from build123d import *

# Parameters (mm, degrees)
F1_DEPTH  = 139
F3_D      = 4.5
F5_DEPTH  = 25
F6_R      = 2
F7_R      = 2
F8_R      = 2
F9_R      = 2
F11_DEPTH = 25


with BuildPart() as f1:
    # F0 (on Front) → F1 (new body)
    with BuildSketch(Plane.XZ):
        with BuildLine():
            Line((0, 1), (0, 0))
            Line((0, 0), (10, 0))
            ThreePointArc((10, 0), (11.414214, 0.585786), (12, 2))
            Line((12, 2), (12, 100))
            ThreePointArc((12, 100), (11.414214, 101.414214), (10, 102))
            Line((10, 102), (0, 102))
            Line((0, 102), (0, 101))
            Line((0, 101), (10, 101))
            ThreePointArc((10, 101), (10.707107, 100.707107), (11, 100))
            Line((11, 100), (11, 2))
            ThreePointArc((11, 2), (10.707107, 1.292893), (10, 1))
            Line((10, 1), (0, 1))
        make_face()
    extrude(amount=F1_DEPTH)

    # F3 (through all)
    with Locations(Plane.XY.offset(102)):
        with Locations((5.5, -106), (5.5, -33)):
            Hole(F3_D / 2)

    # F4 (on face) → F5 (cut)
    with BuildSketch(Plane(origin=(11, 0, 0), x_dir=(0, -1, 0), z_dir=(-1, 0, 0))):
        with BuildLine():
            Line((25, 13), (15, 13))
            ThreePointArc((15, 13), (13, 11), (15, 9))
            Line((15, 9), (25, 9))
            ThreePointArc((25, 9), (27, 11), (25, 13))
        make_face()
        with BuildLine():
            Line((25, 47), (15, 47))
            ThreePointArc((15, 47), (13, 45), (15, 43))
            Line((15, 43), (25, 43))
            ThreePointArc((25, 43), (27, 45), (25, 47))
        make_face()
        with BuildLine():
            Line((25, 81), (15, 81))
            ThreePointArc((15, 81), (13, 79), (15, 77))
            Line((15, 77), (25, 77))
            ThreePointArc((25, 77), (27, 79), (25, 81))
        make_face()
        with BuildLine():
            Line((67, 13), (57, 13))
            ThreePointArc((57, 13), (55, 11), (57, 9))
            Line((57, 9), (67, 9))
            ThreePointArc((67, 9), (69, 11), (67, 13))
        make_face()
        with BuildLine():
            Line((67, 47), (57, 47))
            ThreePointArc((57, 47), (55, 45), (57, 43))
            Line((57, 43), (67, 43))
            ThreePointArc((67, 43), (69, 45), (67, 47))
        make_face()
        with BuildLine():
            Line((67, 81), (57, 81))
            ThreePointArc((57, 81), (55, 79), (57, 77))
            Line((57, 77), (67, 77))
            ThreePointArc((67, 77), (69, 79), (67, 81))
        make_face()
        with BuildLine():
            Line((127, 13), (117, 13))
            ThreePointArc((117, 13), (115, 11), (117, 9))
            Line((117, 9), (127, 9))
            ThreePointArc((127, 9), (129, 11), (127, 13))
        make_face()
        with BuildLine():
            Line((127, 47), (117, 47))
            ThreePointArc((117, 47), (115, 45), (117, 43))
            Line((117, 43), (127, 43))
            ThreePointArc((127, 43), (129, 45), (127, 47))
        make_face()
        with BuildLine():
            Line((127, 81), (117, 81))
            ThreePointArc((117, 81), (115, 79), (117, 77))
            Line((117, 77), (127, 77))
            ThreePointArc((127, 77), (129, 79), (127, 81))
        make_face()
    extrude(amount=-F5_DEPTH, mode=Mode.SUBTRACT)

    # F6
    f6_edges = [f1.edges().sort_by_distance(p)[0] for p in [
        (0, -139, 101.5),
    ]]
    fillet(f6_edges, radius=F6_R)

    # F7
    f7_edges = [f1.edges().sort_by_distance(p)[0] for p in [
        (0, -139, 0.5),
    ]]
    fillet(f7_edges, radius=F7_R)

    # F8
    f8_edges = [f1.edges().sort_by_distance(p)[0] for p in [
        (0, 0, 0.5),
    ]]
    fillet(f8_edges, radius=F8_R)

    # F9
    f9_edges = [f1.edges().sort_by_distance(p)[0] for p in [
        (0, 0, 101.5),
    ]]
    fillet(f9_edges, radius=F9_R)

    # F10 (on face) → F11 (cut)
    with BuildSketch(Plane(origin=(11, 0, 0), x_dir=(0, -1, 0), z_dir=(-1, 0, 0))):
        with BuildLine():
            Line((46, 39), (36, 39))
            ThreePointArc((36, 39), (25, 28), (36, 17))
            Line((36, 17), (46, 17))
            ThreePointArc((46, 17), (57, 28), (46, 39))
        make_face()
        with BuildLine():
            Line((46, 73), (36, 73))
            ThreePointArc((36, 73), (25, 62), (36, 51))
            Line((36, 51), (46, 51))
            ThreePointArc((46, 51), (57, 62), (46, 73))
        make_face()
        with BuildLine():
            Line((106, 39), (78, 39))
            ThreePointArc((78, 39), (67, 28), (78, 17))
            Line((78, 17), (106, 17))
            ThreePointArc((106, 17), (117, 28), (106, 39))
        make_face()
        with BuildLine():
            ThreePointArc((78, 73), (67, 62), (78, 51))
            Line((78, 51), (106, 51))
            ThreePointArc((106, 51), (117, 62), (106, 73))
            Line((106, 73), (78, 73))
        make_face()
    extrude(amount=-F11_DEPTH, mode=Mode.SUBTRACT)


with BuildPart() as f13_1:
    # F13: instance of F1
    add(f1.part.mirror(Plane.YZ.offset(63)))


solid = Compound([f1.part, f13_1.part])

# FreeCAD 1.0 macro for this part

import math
import FreeCAD as App
import Part
import Sketcher

V = App.Vector


def edges_at(feature, points):
    """Names of the edges that pass closest to the given points."""
    edges = feature.Shape.Edges
    near = lambda p: min(range(len(edges)), key=lambda i: edges[i].distToShape(Part.Vertex(*p))[0])
    return sorted({f"Edge{near(p) + 1}" for p in points})

doc = App.newDocument("Part")
body = doc.addObject("PartDesign::Body", "Body")

# Sketch on XZ plane
sketch1 = body.newObject("Sketcher::SketchObject", "Sketch")
sketch1.AttachmentSupport = (doc.getObject("XZ_Plane"), [""])
sketch1.MapMode = "FlatFace"
sketch1.addGeometry(Part.LineSegment(V(0, 1, 0), V(0, 0, 0)), False)
sketch1.addGeometry(Part.LineSegment(V(0, 0, 0), V(10, 0, 0)), False)
sketch1.addGeometry(Part.ArcOfCircle(Part.Circle(V(10, 2, 0), V(0, 0, 1), 2), math.radians(-90), math.radians(0)), False)
sketch1.addGeometry(Part.LineSegment(V(12, 2, 0), V(12, 100, 0)), False)
sketch1.addGeometry(Part.ArcOfCircle(Part.Circle(V(10, 100, 0), V(0, 0, 1), 2), math.radians(0), math.radians(90)), False)
sketch1.addGeometry(Part.LineSegment(V(10, 102, 0), V(0, 102, 0)), False)
sketch1.addGeometry(Part.LineSegment(V(0, 102, 0), V(0, 101, 0)), False)
sketch1.addGeometry(Part.LineSegment(V(0, 101, 0), V(10, 101, 0)), False)
sketch1.addGeometry(Part.ArcOfCircle(Part.Circle(V(10, 100, 0), V(0, 0, 1), 1), math.radians(0), math.radians(90)), False)
sketch1.addGeometry(Part.LineSegment(V(11, 100, 0), V(11, 2, 0)), False)
sketch1.addGeometry(Part.ArcOfCircle(Part.Circle(V(10, 2, 0), V(0, 0, 1), 1), math.radians(-90), math.radians(0)), False)
sketch1.addGeometry(Part.LineSegment(V(10, 1, 0), V(0, 1, 0)), False)
sketch1.addConstraint(Sketcher.Constraint("Coincident", 0, 2, 1, 1))
sketch1.addConstraint(Sketcher.Constraint("Tangent", 1, 2, 2, 1))
sketch1.addConstraint(Sketcher.Constraint("Tangent", 2, 2, 3, 1))
sketch1.addConstraint(Sketcher.Constraint("Tangent", 3, 2, 4, 1))
sketch1.addConstraint(Sketcher.Constraint("Tangent", 4, 2, 5, 1))
sketch1.addConstraint(Sketcher.Constraint("Coincident", 5, 2, 6, 1))
sketch1.addConstraint(Sketcher.Constraint("Coincident", 6, 2, 7, 1))
sketch1.addConstraint(Sketcher.Constraint("Tangent", 7, 2, 8, 2))
sketch1.addConstraint(Sketcher.Constraint("Tangent", 8, 1, 9, 1))
sketch1.addConstraint(Sketcher.Constraint("Tangent", 9, 2, 10, 2))
sketch1.addConstraint(Sketcher.Constraint("Tangent", 10, 1, 11, 1))
sketch1.addConstraint(Sketcher.Constraint("Coincident", 11, 2, 0, 1))
sketch1.addConstraint(Sketcher.Constraint("Vertical", 0))
sketch1.addConstraint(Sketcher.Constraint("Horizontal", 1))
sketch1.addConstraint(Sketcher.Constraint("Vertical", 3))
sketch1.addConstraint(Sketcher.Constraint("Horizontal", 5))
sketch1.addConstraint(Sketcher.Constraint("Vertical", 6))
sketch1.addConstraint(Sketcher.Constraint("Horizontal", 7))
sketch1.addConstraint(Sketcher.Constraint("Vertical", 9))
sketch1.addConstraint(Sketcher.Constraint("Horizontal", 11))
sketch1.addConstraint(Sketcher.Constraint("Coincident", 0, 2, -1, 1))
sketch1.addConstraint(Sketcher.Constraint("Coincident", 8, 3, 4, 3))
sketch1.addConstraint(Sketcher.Constraint("Coincident", 10, 3, 2, 3))
sketch1.addConstraint(Sketcher.Constraint("Equal", 2, 4))
sketch1.addConstraint(Sketcher.Constraint("PointOnObject", 5, 2, -2))
sketch1.addConstraint(Sketcher.Constraint("Radius", 2, 1.999999))
sketch1.addConstraint(Sketcher.Constraint("Radius", 8, 0.999999))
sketch1.addConstraint(Sketcher.Constraint("DistanceX", 1, 1, 1, 2, 10.0))
sketch1.addConstraint(Sketcher.Constraint("DistanceY", 3, 1, 3, 2, 98.0))
pad1 = body.newObject("PartDesign::Pad", "Pad")
pad1.Profile = sketch1
pad1.Length = 139

# Sketch on XY plane
sketch2 = body.newObject("Sketcher::SketchObject", "Sketch001")
sketch2.AttachmentSupport = (doc.getObject("XY_Plane"), [""])
sketch2.MapMode = "FlatFace"
sketch2.AttachmentOffset = App.Placement(V(0, 0, 102), App.Rotation())
sketch2.addGeometry(Part.Circle(V(5.5, -106, 0), V(0, 0, 1), 2.2), False)
sketch2.addGeometry(Part.Circle(V(5.5, -33, 0), V(0, 0, 1), 2.2), False)
sketch2.addConstraint(Sketcher.Constraint("Equal", 0, 1))
sketch2.addConstraint(Sketcher.Constraint("Vertical", 0, 3, 1, 3))
sketch2.addConstraint(Sketcher.Constraint("Diameter", 0, 4.5))
sketch2.addConstraint(Sketcher.Constraint("DistanceY", 0, 3, -1, 1, 106.0))
sketch2.addConstraint(Sketcher.Constraint("DistanceY", 1, 3, -1, 1, 33.0))
sketch2.addConstraint(Sketcher.Constraint("DistanceX", -1, 1, 0, 3, 5.5))
doc.recompute()
hole = body.newObject("PartDesign::Hole", "Hole")
hole.Profile = sketch2
hole.ThreadType = "None"
hole.Diameter = 4.5
hole.DepthType = "ThroughAll"

# Sketch on YZ plane
sketch3 = body.newObject("Sketcher::SketchObject", "Sketch002")
sketch3.AttachmentSupport = (doc.getObject("YZ_Plane"), [""])
sketch3.MapMode = "FlatFace"
sketch3.AttachmentOffset = App.Placement(V(0, 0, 11), App.Rotation())
sketch3.addGeometry(Part.LineSegment(V(-25, 13, 0), V(-15, 13, 0)), False)
sketch3.addGeometry(Part.ArcOfCircle(Part.Circle(V(-15, 11, 0), V(0, 0, 1), 2), math.radians(-90), math.radians(90)), False)
sketch3.addGeometry(Part.LineSegment(V(-15, 9, 0), V(-25, 9, 0)), False)
sketch3.addGeometry(Part.ArcOfCircle(Part.Circle(V(-25, 11, 0), V(0, 0, 1), 2), math.radians(90), math.radians(270)), False)
sketch3.addGeometry(Part.LineSegment(V(-25, 47, 0), V(-15, 47, 0)), False)
sketch3.addGeometry(Part.ArcOfCircle(Part.Circle(V(-15, 45, 0), V(0, 0, 1), 2), math.radians(-90), math.radians(90)), False)
sketch3.addGeometry(Part.LineSegment(V(-15, 43, 0), V(-25, 43, 0)), False)
sketch3.addGeometry(Part.ArcOfCircle(Part.Circle(V(-25, 45, 0), V(0, 0, 1), 2), math.radians(90), math.radians(270)), False)
sketch3.addGeometry(Part.LineSegment(V(-25, 81, 0), V(-15, 81, 0)), False)
sketch3.addGeometry(Part.ArcOfCircle(Part.Circle(V(-15, 79, 0), V(0, 0, 1), 2), math.radians(-90), math.radians(90)), False)
sketch3.addGeometry(Part.LineSegment(V(-15, 77, 0), V(-25, 77, 0)), False)
sketch3.addGeometry(Part.ArcOfCircle(Part.Circle(V(-25, 79, 0), V(0, 0, 1), 2), math.radians(90), math.radians(270)), False)
sketch3.addGeometry(Part.LineSegment(V(-67, 13, 0), V(-57, 13, 0)), False)
sketch3.addGeometry(Part.ArcOfCircle(Part.Circle(V(-57, 11, 0), V(0, 0, 1), 2), math.radians(-90), math.radians(90)), False)
sketch3.addGeometry(Part.LineSegment(V(-57, 9, 0), V(-67, 9, 0)), False)
sketch3.addGeometry(Part.ArcOfCircle(Part.Circle(V(-67, 11, 0), V(0, 0, 1), 2), math.radians(90), math.radians(270)), False)
sketch3.addGeometry(Part.LineSegment(V(-67, 47, 0), V(-57, 47, 0)), False)
sketch3.addGeometry(Part.ArcOfCircle(Part.Circle(V(-57, 45, 0), V(0, 0, 1), 2), math.radians(-90), math.radians(90)), False)
sketch3.addGeometry(Part.LineSegment(V(-57, 43, 0), V(-67, 43, 0)), False)
sketch3.addGeometry(Part.ArcOfCircle(Part.Circle(V(-67, 45, 0), V(0, 0, 1), 2), math.radians(90), math.radians(270)), False)
sketch3.addGeometry(Part.LineSegment(V(-67, 81, 0), V(-57, 81, 0)), False)
sketch3.addGeometry(Part.ArcOfCircle(Part.Circle(V(-57, 79, 0), V(0, 0, 1), 2), math.radians(-90), math.radians(90)), False)
sketch3.addGeometry(Part.LineSegment(V(-57, 77, 0), V(-67, 77, 0)), False)
sketch3.addGeometry(Part.ArcOfCircle(Part.Circle(V(-67, 79, 0), V(0, 0, 1), 2), math.radians(90), math.radians(270)), False)
sketch3.addGeometry(Part.LineSegment(V(-127, 13, 0), V(-117, 13, 0)), False)
sketch3.addGeometry(Part.ArcOfCircle(Part.Circle(V(-117, 11, 0), V(0, 0, 1), 2), math.radians(-90), math.radians(90)), False)
sketch3.addGeometry(Part.LineSegment(V(-117, 9, 0), V(-127, 9, 0)), False)
sketch3.addGeometry(Part.ArcOfCircle(Part.Circle(V(-127, 11, 0), V(0, 0, 1), 2), math.radians(90), math.radians(270)), False)
sketch3.addGeometry(Part.LineSegment(V(-127, 47, 0), V(-117, 47, 0)), False)
sketch3.addGeometry(Part.ArcOfCircle(Part.Circle(V(-117, 45, 0), V(0, 0, 1), 2), math.radians(-90), math.radians(90)), False)
sketch3.addGeometry(Part.LineSegment(V(-117, 43, 0), V(-127, 43, 0)), False)
sketch3.addGeometry(Part.ArcOfCircle(Part.Circle(V(-127, 45, 0), V(0, 0, 1), 2), math.radians(90), math.radians(270)), False)
sketch3.addGeometry(Part.LineSegment(V(-127, 81, 0), V(-117, 81, 0)), False)
sketch3.addGeometry(Part.ArcOfCircle(Part.Circle(V(-117, 79, 0), V(0, 0, 1), 2), math.radians(-90), math.radians(90)), False)
sketch3.addGeometry(Part.LineSegment(V(-117, 77, 0), V(-127, 77, 0)), False)
sketch3.addGeometry(Part.ArcOfCircle(Part.Circle(V(-127, 79, 0), V(0, 0, 1), 2), math.radians(90), math.radians(270)), False)
sketch3.addConstraint(Sketcher.Constraint("Tangent", 0, 2, 1, 2))
sketch3.addConstraint(Sketcher.Constraint("Tangent", 1, 1, 2, 1))
sketch3.addConstraint(Sketcher.Constraint("Tangent", 2, 2, 3, 2))
sketch3.addConstraint(Sketcher.Constraint("Tangent", 3, 1, 0, 1))
sketch3.addConstraint(Sketcher.Constraint("Tangent", 4, 2, 5, 2))
sketch3.addConstraint(Sketcher.Constraint("Tangent", 5, 1, 6, 1))
sketch3.addConstraint(Sketcher.Constraint("Tangent", 6, 2, 7, 2))
sketch3.addConstraint(Sketcher.Constraint("Tangent", 7, 1, 4, 1))
sketch3.addConstraint(Sketcher.Constraint("Tangent", 8, 2, 9, 2))
sketch3.addConstraint(Sketcher.Constraint("Tangent", 9, 1, 10, 1))
sketch3.addConstraint(Sketcher.Constraint("Tangent", 10, 2, 11, 2))
sketch3.addConstraint(Sketcher.Constraint("Tangent", 11, 1, 8, 1))
sketch3.addConstraint(Sketcher.Constraint("Tangent", 12, 2, 13, 2))
sketch3.addConstraint(Sketcher.Constraint("Tangent", 13, 1, 14, 1))
sketch3.addConstraint(Sketcher.Constraint("Tangent", 14, 2, 15, 2))
sketch3.addConstraint(Sketcher.Constraint("Tangent", 15, 1, 12, 1))
sketch3.addConstraint(Sketcher.Constraint("Tangent", 16, 2, 17, 2))
sketch3.addConstraint(Sketcher.Constraint("Tangent", 17, 1, 18, 1))
sketch3.addConstraint(Sketcher.Constraint("Tangent", 18, 2, 19, 2))
sketch3.addConstraint(Sketcher.Constraint("Tangent", 19, 1, 16, 1))
sketch3.addConstraint(Sketcher.Constraint("Tangent", 20, 2, 21, 2))
sketch3.addConstraint(Sketcher.Constraint("Tangent", 21, 1, 22, 1))
sketch3.addConstraint(Sketcher.Constraint("Tangent", 22, 2, 23, 2))
sketch3.addConstraint(Sketcher.Constraint("Tangent", 23, 1, 20, 1))
sketch3.addConstraint(Sketcher.Constraint("Tangent", 24, 2, 25, 2))
sketch3.addConstraint(Sketcher.Constraint("Tangent", 25, 1, 26, 1))
sketch3.addConstraint(Sketcher.Constraint("Tangent", 26, 2, 27, 2))
sketch3.addConstraint(Sketcher.Constraint("Tangent", 27, 1, 24, 1))
sketch3.addConstraint(Sketcher.Constraint("Tangent", 28, 2, 29, 2))
sketch3.addConstraint(Sketcher.Constraint("Tangent", 29, 1, 30, 1))
sketch3.addConstraint(Sketcher.Constraint("Tangent", 30, 2, 31, 2))
sketch3.addConstraint(Sketcher.Constraint("Tangent", 31, 1, 28, 1))
sketch3.addConstraint(Sketcher.Constraint("Tangent", 32, 2, 33, 2))
sketch3.addConstraint(Sketcher.Constraint("Tangent", 33, 1, 34, 1))
sketch3.addConstraint(Sketcher.Constraint("Tangent", 34, 2, 35, 2))
sketch3.addConstraint(Sketcher.Constraint("Tangent", 35, 1, 32, 1))
sketch3.addConstraint(Sketcher.Constraint("Horizontal", 0))
sketch3.addConstraint(Sketcher.Constraint("Horizontal", 2))
sketch3.addConstraint(Sketcher.Constraint("Horizontal", 4))
sketch3.addConstraint(Sketcher.Constraint("Horizontal", 6))
sketch3.addConstraint(Sketcher.Constraint("Horizontal", 8))
sketch3.addConstraint(Sketcher.Constraint("Horizontal", 10))
sketch3.addConstraint(Sketcher.Constraint("Horizontal", 12))
sketch3.addConstraint(Sketcher.Constraint("Horizontal", 14))
sketch3.addConstraint(Sketcher.Constraint("Horizontal", 16))
sketch3.addConstraint(Sketcher.Constraint("Horizontal", 18))
sketch3.addConstraint(Sketcher.Constraint("Horizontal", 20))
sketch3.addConstraint(Sketcher.Constraint("Horizontal", 22))
sketch3.addConstraint(Sketcher.Constraint("Horizontal", 24))
sketch3.addConstraint(Sketcher.Constraint("Horizontal", 26))
sketch3.addConstraint(Sketcher.Constraint("Horizontal", 28))
sketch3.addConstraint(Sketcher.Constraint("Horizontal", 30))
sketch3.addConstraint(Sketcher.Constraint("Horizontal", 32))
sketch3.addConstraint(Sketcher.Constraint("Horizontal", 34))
sketch3.addConstraint(Sketcher.Constraint("Equal", 3, 5))
sketch3.addConstraint(Sketcher.Constraint("Equal", 7, 9))
sketch3.addConstraint(Sketcher.Constraint("Equal", 11, 13))
sketch3.addConstraint(Sketcher.Constraint("Equal", 15, 17))
sketch3.addConstraint(Sketcher.Constraint("Equal", 19, 21))
sketch3.addConstraint(Sketcher.Constraint("Equal", 23, 25))
sketch3.addConstraint(Sketcher.Constraint("Equal", 27, 29))
sketch3.addConstraint(Sketcher.Constraint("Equal", 31, 33))
sketch3.addConstraint(Sketcher.Constraint("Horizontal", 3, 3, 13, 3))
sketch3.addConstraint(Sketcher.Constraint("Horizontal", 7, 3, 17, 3))
sketch3.addConstraint(Sketcher.Constraint("Horizontal", 11, 3, 21, 3))
sketch3.addConstraint(Sketcher.Constraint("Horizontal", 15, 3, 25, 3))
sketch3.addConstraint(Sketcher.Constraint("Horizontal", 19, 3, 29, 3))
sketch3.addConstraint(Sketcher.Constraint("Horizontal", 23, 3, 33, 3))
sketch3.addConstraint(Sketcher.Constraint("Vertical", 1, 3, 5, 3))
sketch3.addConstraint(Sketcher.Constraint("Vertical", 3, 3, 7, 3))
sketch3.addConstraint(Sketcher.Constraint("Vertical", 5, 3, 9, 3))
sketch3.addConstraint(Sketcher.Constraint("Vertical", 7, 3, 11, 3))
sketch3.addConstraint(Sketcher.Constraint("Vertical", 13, 3, 17, 3))
sketch3.addConstraint(Sketcher.Constraint("Vertical", 15, 3, 19, 3))
sketch3.addConstraint(Sketcher.Constraint("Vertical", 17, 3, 21, 3))
sketch3.addConstraint(Sketcher.Constraint("Vertical", 19, 3, 23, 3))
sketch3.addConstraint(Sketcher.Constraint("Vertical", 25, 3, 29, 3))
sketch3.addConstraint(Sketcher.Constraint("Vertical", 27, 3, 31, 3))
sketch3.addConstraint(Sketcher.Constraint("Vertical", 29, 3, 33, 3))
sketch3.addConstraint(Sketcher.Constraint("Vertical", 31, 3, 35, 3))
sketch3.addConstraint(Sketcher.Constraint("Equal", 10, 12))
sketch3.addConstraint(Sketcher.Constraint("Equal", 22, 24))
sketch3.addConstraint(Sketcher.Constraint("Radius", 1, 2.0))
sketch3.addConstraint(Sketcher.Constraint("DistanceX", 0, 1, 0, 2, 10.0))
sketch3.addConstraint(Sketcher.Constraint("DistanceX", 1, 3, -1, 1, 15.0))
sketch3.addConstraint(Sketcher.Constraint("DistanceY", -1, 1, 1, 3, 11.0))
sketch3.addConstraint(Sketcher.Constraint("DistanceY", -1, 1, 5, 3, 45.0))
sketch3.addConstraint(Sketcher.Constraint("DistanceY", -1, 1, 9, 3, 79.0))
sketch3.addConstraint(Sketcher.Constraint("DistanceX", 13, 3, -1, 1, 57.0))
sketch3.addConstraint(Sketcher.Constraint("DistanceX", 25, 3, -1, 1, 117.0))
pocket1 = body.newObject("PartDesign::Pocket", "Pocket")
pocket1.Profile = sketch3
pocket1.Length = 25
pocket1.Reversed = True
doc.recompute()

fillet = body.newObject("PartDesign::Fillet", "Fillet")
fillet.Base = (pocket1, edges_at(pocket1, [(0, -139, 101.5)]))
fillet.Radius = 2
doc.recompute()

fillet2 = body.newObject("PartDesign::Fillet", "Fillet001")
fillet2.Base = (fillet, edges_at(fillet, [(0, -139, 0.5)]))
fillet2.Radius = 2
doc.recompute()

fillet3 = body.newObject("PartDesign::Fillet", "Fillet002")
fillet3.Base = (fillet2, edges_at(fillet2, [(0, 0, 0.5)]))
fillet3.Radius = 2
doc.recompute()

fillet4 = body.newObject("PartDesign::Fillet", "Fillet003")
fillet4.Base = (fillet3, edges_at(fillet3, [(0, 0, 101.5)]))
fillet4.Radius = 2

# Sketch on YZ plane
sketch4 = body.newObject("Sketcher::SketchObject", "Sketch003")
sketch4.AttachmentSupport = (doc.getObject("YZ_Plane"), [""])
sketch4.MapMode = "FlatFace"
sketch4.AttachmentOffset = App.Placement(V(0, 0, 11), App.Rotation())
sketch4.addGeometry(Part.LineSegment(V(-46, 39, 0), V(-36, 39, 0)), False)
sketch4.addGeometry(Part.ArcOfCircle(Part.Circle(V(-36, 28, 0), V(0, 0, 1), 11), math.radians(-90), math.radians(90)), False)
sketch4.addGeometry(Part.LineSegment(V(-36, 17, 0), V(-46, 17, 0)), False)
sketch4.addGeometry(Part.ArcOfCircle(Part.Circle(V(-46, 28, 0), V(0, 0, 1), 11), math.radians(90), math.radians(270)), False)
sketch4.addGeometry(Part.LineSegment(V(-46, 73, 0), V(-36, 73, 0)), False)
sketch4.addGeometry(Part.ArcOfCircle(Part.Circle(V(-36, 62, 0), V(0, 0, 1), 11), math.radians(-90), math.radians(90)), False)
sketch4.addGeometry(Part.LineSegment(V(-36, 51, 0), V(-46, 51, 0)), False)
sketch4.addGeometry(Part.ArcOfCircle(Part.Circle(V(-46, 62, 0), V(0, 0, 1), 11), math.radians(90), math.radians(270)), False)
sketch4.addGeometry(Part.LineSegment(V(-106, 39, 0), V(-78, 39, 0)), False)
sketch4.addGeometry(Part.ArcOfCircle(Part.Circle(V(-78, 28, 0), V(0, 0, 1), 11), math.radians(-90), math.radians(90)), False)
sketch4.addGeometry(Part.LineSegment(V(-78, 17, 0), V(-106, 17, 0)), False)
sketch4.addGeometry(Part.ArcOfCircle(Part.Circle(V(-106, 28, 0), V(0, 0, 1), 11), math.radians(90), math.radians(270)), False)
sketch4.addGeometry(Part.ArcOfCircle(Part.Circle(V(-78, 62, 0), V(0, 0, 1), 11), math.radians(-90), math.radians(90)), False)
sketch4.addGeometry(Part.LineSegment(V(-78, 51, 0), V(-106, 51, 0)), False)
sketch4.addGeometry(Part.ArcOfCircle(Part.Circle(V(-106, 62, 0), V(0, 0, 1), 11), math.radians(90), math.radians(270)), False)
sketch4.addGeometry(Part.LineSegment(V(-106, 73, 0), V(-78, 73, 0)), False)
sketch4.addConstraint(Sketcher.Constraint("Tangent", 0, 2, 1, 2))
sketch4.addConstraint(Sketcher.Constraint("Tangent", 1, 1, 2, 1))
sketch4.addConstraint(Sketcher.Constraint("Tangent", 2, 2, 3, 2))
sketch4.addConstraint(Sketcher.Constraint("Tangent", 3, 1, 0, 1))
sketch4.addConstraint(Sketcher.Constraint("Tangent", 4, 2, 5, 2))
sketch4.addConstraint(Sketcher.Constraint("Tangent", 5, 1, 6, 1))
sketch4.addConstraint(Sketcher.Constraint("Tangent", 6, 2, 7, 2))
sketch4.addConstraint(Sketcher.Constraint("Tangent", 7, 1, 4, 1))
sketch4.addConstraint(Sketcher.Constraint("Tangent", 8, 2, 9, 2))
sketch4.addConstraint(Sketcher.Constraint("Tangent", 9, 1, 10, 1))
sketch4.addConstraint(Sketcher.Constraint("Tangent", 10, 2, 11, 2))
sketch4.addConstraint(Sketcher.Constraint("Tangent", 11, 1, 8, 1))
sketch4.addConstraint(Sketcher.Constraint("Tangent", 12, 1, 13, 1))
sketch4.addConstraint(Sketcher.Constraint("Tangent", 13, 2, 14, 2))
sketch4.addConstraint(Sketcher.Constraint("Tangent", 14, 1, 15, 1))
sketch4.addConstraint(Sketcher.Constraint("Tangent", 15, 2, 12, 2))
sketch4.addConstraint(Sketcher.Constraint("Horizontal", 0))
sketch4.addConstraint(Sketcher.Constraint("Horizontal", 2))
sketch4.addConstraint(Sketcher.Constraint("Horizontal", 4))
sketch4.addConstraint(Sketcher.Constraint("Horizontal", 6))
sketch4.addConstraint(Sketcher.Constraint("Horizontal", 8))
sketch4.addConstraint(Sketcher.Constraint("Horizontal", 10))
sketch4.addConstraint(Sketcher.Constraint("Horizontal", 13))
sketch4.addConstraint(Sketcher.Constraint("Horizontal", 15))
sketch4.addConstraint(Sketcher.Constraint("Equal", 3, 5))
sketch4.addConstraint(Sketcher.Constraint("Equal", 7, 9))
sketch4.addConstraint(Sketcher.Constraint("Equal", 11, 12))
sketch4.addConstraint(Sketcher.Constraint("Horizontal", 3, 3, 9, 3))
sketch4.addConstraint(Sketcher.Constraint("Horizontal", 7, 3, 12, 3))
sketch4.addConstraint(Sketcher.Constraint("Vertical", 1, 3, 5, 3))
sketch4.addConstraint(Sketcher.Constraint("Vertical", 3, 3, 7, 3))
sketch4.addConstraint(Sketcher.Constraint("Vertical", 9, 3, 12, 3))
sketch4.addConstraint(Sketcher.Constraint("Vertical", 11, 3, 14, 3))
sketch4.addConstraint(Sketcher.Constraint("Radius", 1, 11.0))
sketch4.addConstraint(Sketcher.Constraint("DistanceX", 0, 1, 0, 2, 10.0))
sketch4.addConstraint(Sketcher.Constraint("DistanceX", 8, 1, 8, 2, 28.0))
sketch4.addConstraint(Sketcher.Constraint("DistanceX", 1, 3, -1, 1, 36.0))
sketch4.addConstraint(Sketcher.Constraint("DistanceY", -1, 1, 1, 3, 28.0))
sketch4.addConstraint(Sketcher.Constraint("DistanceY", -1, 1, 5, 3, 62.0))
sketch4.addConstraint(Sketcher.Constraint("DistanceX", 9, 3, -1, 1, 78.0))
pocket2 = body.newObject("PartDesign::Pocket", "Pocket001")
pocket2.Profile = sketch4
pocket2.Length = 25
pocket2.Reversed = True
body2 = doc.addObject("PartDesign::Body", "Body001")
doc.recompute()

mirroring = doc.addObject("Part::Mirroring", "Mirroring")
mirroring.Source = body
mirroring.Base = V(63, 0, 0)
mirroring.Normal = V(1, 0, 0)
body2.BaseFeature = mirroring
doc.recompute()
mirroring.Visibility = False

doc.recompute()
